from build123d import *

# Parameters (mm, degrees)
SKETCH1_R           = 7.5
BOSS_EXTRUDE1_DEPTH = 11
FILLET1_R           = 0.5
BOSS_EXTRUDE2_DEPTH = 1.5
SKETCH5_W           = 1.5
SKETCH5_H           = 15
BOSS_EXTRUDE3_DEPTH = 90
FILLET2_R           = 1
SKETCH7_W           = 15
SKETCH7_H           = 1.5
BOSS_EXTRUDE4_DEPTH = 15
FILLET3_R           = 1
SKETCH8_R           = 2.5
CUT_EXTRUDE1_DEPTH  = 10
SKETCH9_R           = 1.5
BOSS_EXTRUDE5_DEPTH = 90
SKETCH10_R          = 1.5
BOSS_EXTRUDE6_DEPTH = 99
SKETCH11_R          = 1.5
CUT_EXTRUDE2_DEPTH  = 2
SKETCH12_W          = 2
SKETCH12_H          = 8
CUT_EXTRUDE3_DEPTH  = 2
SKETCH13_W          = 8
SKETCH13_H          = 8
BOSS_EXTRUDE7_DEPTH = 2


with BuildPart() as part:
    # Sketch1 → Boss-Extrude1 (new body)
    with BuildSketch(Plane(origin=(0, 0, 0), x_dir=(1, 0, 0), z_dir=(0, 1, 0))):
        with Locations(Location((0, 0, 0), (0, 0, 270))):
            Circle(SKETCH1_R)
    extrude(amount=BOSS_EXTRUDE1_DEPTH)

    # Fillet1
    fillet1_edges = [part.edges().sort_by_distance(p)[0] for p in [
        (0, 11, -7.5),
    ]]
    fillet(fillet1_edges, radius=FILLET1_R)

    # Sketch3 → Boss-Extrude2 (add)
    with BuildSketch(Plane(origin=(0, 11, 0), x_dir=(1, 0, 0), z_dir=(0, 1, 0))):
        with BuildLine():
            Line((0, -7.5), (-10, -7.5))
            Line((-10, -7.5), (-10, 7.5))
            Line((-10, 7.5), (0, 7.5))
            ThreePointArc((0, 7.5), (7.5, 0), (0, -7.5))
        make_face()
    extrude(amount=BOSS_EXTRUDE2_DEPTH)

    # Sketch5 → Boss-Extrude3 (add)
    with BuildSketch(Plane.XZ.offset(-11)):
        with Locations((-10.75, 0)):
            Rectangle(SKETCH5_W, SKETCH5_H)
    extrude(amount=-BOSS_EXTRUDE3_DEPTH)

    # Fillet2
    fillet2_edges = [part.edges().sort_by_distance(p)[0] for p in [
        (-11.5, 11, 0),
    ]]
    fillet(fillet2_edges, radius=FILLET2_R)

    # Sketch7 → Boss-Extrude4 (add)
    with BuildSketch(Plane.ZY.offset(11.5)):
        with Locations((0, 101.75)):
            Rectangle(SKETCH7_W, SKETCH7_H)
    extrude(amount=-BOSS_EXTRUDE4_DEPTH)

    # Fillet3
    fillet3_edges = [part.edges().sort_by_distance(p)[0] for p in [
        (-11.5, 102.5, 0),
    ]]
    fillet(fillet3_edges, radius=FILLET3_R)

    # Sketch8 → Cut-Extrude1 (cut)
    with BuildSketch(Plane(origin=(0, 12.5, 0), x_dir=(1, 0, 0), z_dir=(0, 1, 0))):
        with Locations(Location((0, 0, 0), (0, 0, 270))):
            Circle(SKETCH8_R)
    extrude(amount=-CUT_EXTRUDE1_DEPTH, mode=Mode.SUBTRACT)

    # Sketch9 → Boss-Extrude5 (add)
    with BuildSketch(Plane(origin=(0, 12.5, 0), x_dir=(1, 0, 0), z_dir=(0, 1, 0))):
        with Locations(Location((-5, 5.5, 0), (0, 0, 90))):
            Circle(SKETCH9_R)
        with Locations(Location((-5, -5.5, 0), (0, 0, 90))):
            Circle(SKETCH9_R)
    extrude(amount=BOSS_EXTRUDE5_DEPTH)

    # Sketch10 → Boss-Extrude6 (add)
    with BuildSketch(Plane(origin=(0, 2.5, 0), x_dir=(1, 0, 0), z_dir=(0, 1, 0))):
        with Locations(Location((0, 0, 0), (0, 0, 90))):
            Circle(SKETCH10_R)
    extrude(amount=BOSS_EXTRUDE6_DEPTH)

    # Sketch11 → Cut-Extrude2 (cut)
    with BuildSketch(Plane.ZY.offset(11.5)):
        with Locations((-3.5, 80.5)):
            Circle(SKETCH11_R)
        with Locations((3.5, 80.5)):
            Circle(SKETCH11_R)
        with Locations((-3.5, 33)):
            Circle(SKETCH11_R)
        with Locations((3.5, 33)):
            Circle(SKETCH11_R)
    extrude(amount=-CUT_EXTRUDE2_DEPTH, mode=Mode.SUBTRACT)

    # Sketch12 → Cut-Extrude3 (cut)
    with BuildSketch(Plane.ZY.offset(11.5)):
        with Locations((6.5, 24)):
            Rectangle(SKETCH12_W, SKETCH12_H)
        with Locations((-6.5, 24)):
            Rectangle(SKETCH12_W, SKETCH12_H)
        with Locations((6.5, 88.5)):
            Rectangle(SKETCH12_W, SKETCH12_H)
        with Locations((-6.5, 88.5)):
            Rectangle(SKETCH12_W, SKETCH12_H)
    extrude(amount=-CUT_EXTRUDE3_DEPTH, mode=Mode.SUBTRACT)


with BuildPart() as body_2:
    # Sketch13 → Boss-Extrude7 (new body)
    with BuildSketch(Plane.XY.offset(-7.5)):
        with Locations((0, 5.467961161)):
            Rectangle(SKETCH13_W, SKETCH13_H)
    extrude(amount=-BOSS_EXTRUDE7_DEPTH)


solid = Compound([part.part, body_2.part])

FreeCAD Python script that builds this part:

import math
import FreeCAD as App
import Part
import Sketcher
Q = App.Units.Quantity


def edges_at(feature, points):
    """Names of the edges that pass closest to the given points."""
    edges = feature.Shape.Edges
    near = lambda p: min(range(len(edges)), key=lambda i: edges[i].distToShape(Part.Vertex(*p))[0])
    return sorted({f"Edge{near(p) + 1}" for p in points})

doc = App.newDocument("Part")
body = doc.addObject("PartDesign::Body", "Body")

# Sketch on XZ plane
sketch1 = body.newObject("Sketcher::SketchObject", "Sketch")
sketch1.AttachmentSupport = (doc.getObject("XZ_Plane"), [""])
sketch1.MapMode = "FlatFace"
sketch1.addGeometry(Part.Circle(App.Vector(0, 0, 0), App.Vector(0, 0, 1), 7.5), False)
sketch1.addConstraint(Sketcher.Constraint("Coincident", 0, 3, -1, 1))
sketch1.addConstraint(Sketcher.Constraint("Diameter", 0, Q("15 mm")))
pad1 = body.newObject("PartDesign::Pad", "Pad")
pad1.Profile = sketch1
pad1.Length = 11
pad1.Reversed = True
doc.recompute()

fillet = body.newObject("PartDesign::Fillet", "Fillet")
fillet.Base = (pad1, edges_at(pad1, [(0, 11, -7.5)]))
fillet.Radius = 0.5

# Sketch on XZ plane
sketch2 = body.newObject("Sketcher::SketchObject", "Sketch001")
sketch2.AttachmentSupport = (doc.getObject("XZ_Plane"), [""])
sketch2.MapMode = "FlatFace"
sketch2.AttachmentOffset = App.Placement(App.Vector(0, 0, -11), App.Rotation())
sketch2.addGeometry(Part.LineSegment(App.Vector(-10, 7.5, 0), App.Vector(0, 7.5, 0)), False)
sketch2.addGeometry(Part.ArcOfCircle(Part.Circle(App.Vector(0, 0, 0), App.Vector(0, 0, 1), 7.5), math.radians(-90), math.radians(90)), False)
sketch2.addGeometry(Part.LineSegment(App.Vector(0, -7.5, 0), App.Vector(-10, -7.5, 0)), False)
sketch2.addGeometry(Part.LineSegment(App.Vector(-10, -7.5, 0), App.Vector(-10, 7.5, 0)), False)
sketch2.addConstraint(Sketcher.Constraint("Tangent", 0, 2, 1, 2))
sketch2.addConstraint(Sketcher.Constraint("Tangent", 1, 1, 2, 1))
sketch2.addConstraint(Sketcher.Constraint("Coincident", 2, 2, 3, 1))
sketch2.addConstraint(Sketcher.Constraint("Coincident", 3, 2, 0, 1))
sketch2.addConstraint(Sketcher.Constraint("Horizontal", 0))
sketch2.addConstraint(Sketcher.Constraint("Horizontal", 2))
sketch2.addConstraint(Sketcher.Constraint("Vertical", 3))
sketch2.addConstraint(Sketcher.Constraint("Coincident", 1, 3, -1, 1))
sketch2.addConstraint(Sketcher.Constraint("Radius", 1, Q("7.5 mm")))
sketch2.addConstraint(Sketcher.Constraint("DistanceX", 0, 1, 0, 2, Q("10 mm")))
pad2 = body.newObject("PartDesign::Pad", "Pad001")
pad2.Profile = sketch2
pad2.Length = 1.5
pad2.Reversed = True

# Sketch on XZ plane
sketch3 = body.newObject("Sketcher::SketchObject", "Sketch002")
sketch3.AttachmentSupport = (doc.getObject("XZ_Plane"), [""])
sketch3.MapMode = "FlatFace"
sketch3.AttachmentOffset = App.Placement(App.Vector(0, 0, -11), App.Rotation())
sketch3.addGeometry(Part.LineSegment(App.Vector(-11.5, 7.5, 0), App.Vector(-11.5, -7.5, 0)), False)
sketch3.addGeometry(Part.LineSegment(App.Vector(-11.5, -7.5, 0), App.Vector(-10, -7.5, 0)), False)
sketch3.addGeometry(Part.LineSegment(App.Vector(-10, -7.5, 0), App.Vector(-10, 7.5, 0)), False)
sketch3.addGeometry(Part.LineSegment(App.Vector(-10, 7.5, 0), App.Vector(-11.5, 7.5, 0)), False)
sketch3.addConstraint(Sketcher.Constraint("Coincident", 0, 2, 1, 1))
sketch3.addConstraint(Sketcher.Constraint("Coincident", 1, 2, 2, 1))
sketch3.addConstraint(Sketcher.Constraint("Coincident", 2, 2, 3, 1))
sketch3.addConstraint(Sketcher.Constraint("Coincident", 3, 2, 0, 1))
sketch3.addConstraint(Sketcher.Constraint("Vertical", 0))
sketch3.addConstraint(Sketcher.Constraint("Horizontal", 1))
sketch3.addConstraint(Sketcher.Constraint("Vertical", 2))
sketch3.addConstraint(Sketcher.Constraint("Horizontal", 3))
sketch3.addConstraint(Sketcher.Constraint("DistanceY", 0, 2, 0, 1, Q("15 mm")))
sketch3.addConstraint(Sketcher.Constraint("DistanceX", 1, 1, 1, 2, Q("1.5 mm")))
sketch3.addConstraint(Sketcher.Constraint("DistanceX", 1, 2, -1, 1, Q("10 mm")))
sketch3.addConstraint(Sketcher.Constraint("DistanceY", 0, 2, -1, 1, Q("7.5 mm")))
pad3 = body.newObject("PartDesign::Pad", "Pad002")
pad3.Profile = sketch3
pad3.Length = 90
pad3.Reversed = True
doc.recompute()

fillet2 = body.newObject("PartDesign::Fillet", "Fillet001")
fillet2.Base = (pad3, edges_at(pad3, [(-11.5, 11, 0)]))
fillet2.Radius = 1

# Sketch on YZ plane
sketch4 = body.newObject("Sketcher::SketchObject", "Sketch003")
sketch4.AttachmentSupport = (doc.getObject("YZ_Plane"), [""])
sketch4.MapMode = "FlatFace"
sketch4.AttachmentOffset = App.Placement(App.Vector(0, 0, -11.5), App.Rotation())
sketch4.addGeometry(Part.LineSegment(App.Vector(102.5, -7.5, 0), App.Vector(101, -7.5, 0)), False)
sketch4.addGeometry(Part.LineSegment(App.Vector(101, -7.5, 0), App.Vector(101, 7.5, 0)), False)
sketch4.addGeometry(Part.LineSegment(App.Vector(101, 7.5, 0), App.Vector(102.5, 7.5, 0)), False)
sketch4.addGeometry(Part.LineSegment(App.Vector(102.5, 7.5, 0), App.Vector(102.5, -7.5, 0)), False)
sketch4.addConstraint(Sketcher.Constraint("Coincident", 0, 2, 1, 1))
sketch4.addConstraint(Sketcher.Constraint("Coincident", 1, 2, 2, 1))
sketch4.addConstraint(Sketcher.Constraint("Coincident", 2, 2, 3, 1))
sketch4.addConstraint(Sketcher.Constraint("Coincident", 3, 2, 0, 1))
sketch4.addConstraint(Sketcher.Constraint("Horizontal", 0))
sketch4.addConstraint(Sketcher.Constraint("Vertical", 1))
sketch4.addConstraint(Sketcher.Constraint("Horizontal", 2))
sketch4.addConstraint(Sketcher.Constraint("Vertical", 3))
sketch4.addConstraint(Sketcher.Constraint("DistanceY", 1, 1, 1, 2, Q("15 mm")))
sketch4.addConstraint(Sketcher.Constraint("DistanceX", 0, 2, 0, 1, Q("1.5 mm")))
sketch4.addConstraint(Sketcher.Constraint("DistanceX", -1, 1, 0, 2, Q("101 mm")))
sketch4.addConstraint(Sketcher.Constraint("DistanceY", 0, 2, -1, 1, Q("7.5 mm")))
pad4 = body.newObject("PartDesign::Pad", "Pad003")
pad4.Profile = sketch4
pad4.Length = 15
doc.recompute()

fillet3 = body.newObject("PartDesign::Fillet", "Fillet002")
fillet3.Base = (pad4, edges_at(pad4, [(-11.5, 102.5, 0)]))
fillet3.Radius = 1

# Sketch on XZ plane
sketch5 = body.newObject("Sketcher::SketchObject", "Sketch004")
sketch5.AttachmentSupport = (doc.getObject("XZ_Plane"), [""])
sketch5.MapMode = "FlatFace"
sketch5.AttachmentOffset = App.Placement(App.Vector(0, 0, -12.5), App.Rotation())
sketch5.addGeometry(Part.Circle(App.Vector(0, 0, 0), App.Vector(0, 0, 1), 2.5), False)
sketch5.addConstraint(Sketcher.Constraint("Coincident", 0, 3, -1, 1))
sketch5.addConstraint(Sketcher.Constraint("Diameter", 0, Q("5 mm")))
pocket1 = body.newObject("PartDesign::Pocket", "Pocket")
pocket1.Profile = sketch5
pocket1.Length = 10
pocket1.Reversed = True

# Sketch on XZ plane
sketch6 = body.newObject("Sketcher::SketchObject", "Sketch005")
sketch6.AttachmentSupport = (doc.getObject("XZ_Plane"), [""])
sketch6.MapMode = "FlatFace"
sketch6.AttachmentOffset = App.Placement(App.Vector(0, 0, -12.5), App.Rotation())
sketch6.addGeometry(Part.Circle(App.Vector(-5, -5.5, 0), App.Vector(0, 0, 1), 1.5), False)
sketch6.addGeometry(Part.Circle(App.Vector(-5, 5.5, 0), App.Vector(0, 0, 1), 1.5), False)
sketch6.addConstraint(Sketcher.Constraint("Equal", 0, 1))
sketch6.addConstraint(Sketcher.Constraint("Symmetric", 0, 3, 1, 3, -1))
sketch6.addConstraint(Sketcher.Constraint("Diameter", 0, Q("3 mm")))
sketch6.addConstraint(Sketcher.Constraint("DistanceX", 0, 3, -1, 1, Q("5 mm")))
sketch6.addConstraint(Sketcher.Constraint("DistanceY", 0, 3, 1, 3, Q("11 mm")))
pad5 = body.newObject("PartDesign::Pad", "Pad004")
pad5.Profile = sketch6
pad5.Length = 90
pad5.Reversed = True

# Sketch on XZ plane
sketch7 = body.newObject("Sketcher::SketchObject", "Sketch006")
sketch7.AttachmentSupport = (doc.getObject("XZ_Plane"), [""])
sketch7.MapMode = "FlatFace"
sketch7.AttachmentOffset = App.Placement(App.Vector(0, 0, -2.5), App.Rotation())
sketch7.addGeometry(Part.Circle(App.Vector(0, 0, 0), App.Vector(0, 0, 1), 1.5), False)
sketch7.addConstraint(Sketcher.Constraint("Coincident", 0, 3, -1, 1))
sketch7.addConstraint(Sketcher.Constraint("Diameter", 0, Q("3 mm")))
pad6 = body.newObject("PartDesign::Pad", "Pad005")
pad6.Profile = sketch7
pad6.Length = 99
pad6.Reversed = True

# Sketch on YZ plane
sketch8 = body.newObject("Sketcher::SketchObject", "Sketch007")
sketch8.AttachmentSupport = (doc.getObject("YZ_Plane"), [""])
sketch8.MapMode = "FlatFace"
sketch8.AttachmentOffset = App.Placement(App.Vector(0, 0, -11.5), App.Rotation())
sketch8.addGeometry(Part.Circle(App.Vector(80.5, -3.5, 0), App.Vector(0, 0, 1), 1.5), False)
sketch8.addGeometry(Part.Circle(App.Vector(80.5, 3.5, 0), App.Vector(0, 0, 1), 1.5), False)
sketch8.addGeometry(Part.Circle(App.Vector(33, -3.5, 0), App.Vector(0, 0, 1), 1.5), False)
sketch8.addGeometry(Part.Circle(App.Vector(33, 3.5, 0), App.Vector(0, 0, 1), 1.5), False)
sketch8.addConstraint(Sketcher.Constraint("Equal", 0, 1))
sketch8.addConstraint(Sketcher.Constraint("Equal", 1, 2))
sketch8.addConstraint(Sketcher.Constraint("Equal", 2, 3))
sketch8.addConstraint(Sketcher.Constraint("Symmetric", 0, 3, 1, 3, -1))
sketch8.addConstraint(Sketcher.Constraint("Symmetric", 2, 3, 3, 3, -1))
sketch8.addConstraint(Sketcher.Constraint("Horizontal", 0, 3, 2, 3))
sketch8.addConstraint(Sketcher.Constraint("Diameter", 0, Q("3 mm")))
sketch8.addConstraint(Sketcher.Constraint("DistanceX", -1, 1, 2, 3, Q("33 mm")))
sketch8.addConstraint(Sketcher.Constraint("DistanceY", 0, 3, 1, 3, Q("7 mm")))
sketch8.addConstraint(Sketcher.Constraint("DistanceX", -1, 1, 0, 3, Q("80.5 mm")))
pocket2 = body.newObject("PartDesign::Pocket", "Pocket001")
pocket2.Profile = sketch8
pocket2.Length = 2
pocket2.Reversed = True

# Sketch on YZ plane
sketch9 = body.newObject("Sketcher::SketchObject", "Sketch008")
sketch9.AttachmentSupport = (doc.getObject("YZ_Plane"), [""])
sketch9.MapMode = "FlatFace"
sketch9.AttachmentOffset = App.Placement(App.Vector(0, 0, -11.5), App.Rotation())
sketch9.addGeometry(Part.LineSegment(App.Vector(28, 5.5, 0), App.Vector(20, 5.5, 0)), False)
sketch9.addGeometry(Part.LineSegment(App.Vector(20, 5.5, 0), App.Vector(20, 7.5, 0)), False)
sketch9.addGeometry(Part.LineSegment(App.Vector(20, 7.5, 0), App.Vector(28, 7.5, 0)), False)
sketch9.addGeometry(Part.LineSegment(App.Vector(28, 7.5, 0), App.Vector(28, 5.5, 0)), False)
sketch9.addGeometry(Part.LineSegment(App.Vector(28, -7.5, 0), App.Vector(20, -7.5, 0)), False)
sketch9.addGeometry(Part.LineSegment(App.Vector(20, -7.5, 0), App.Vector(20, -5.5, 0)), False)
sketch9.addGeometry(Part.LineSegment(App.Vector(20, -5.5, 0), App.Vector(28, -5.5, 0)), False)
sketch9.addGeometry(Part.LineSegment(App.Vector(28, -5.5, 0), App.Vector(28, -7.5, 0)), False)
sketch9.addGeometry(Part.LineSegment(App.Vector(92.5, 5.5, 0), App.Vector(84.5, 5.5, 0)), False)
sketch9.addGeometry(Part.LineSegment(App.Vector(84.5, 5.5, 0), App.Vector(84.5, 7.5, 0)), False)
sketch9.addGeometry(Part.LineSegment(App.Vector(84.5, 7.5, 0), App.Vector(92.5, 7.5, 0)), False)
sketch9.addGeometry(Part.LineSegment(App.Vector(92.5, 7.5, 0), App.Vector(92.5, 5.5, 0)), False)
sketch9.addGeometry(Part.LineSegment(App.Vector(92.5, -7.5, 0), App.Vector(84.5, -7.5, 0)), False)
sketch9.addGeometry(Part.LineSegment(App.Vector(84.5, -7.5, 0), App.Vector(84.5, -5.5, 0)), False)
sketch9.addGeometry(Part.LineSegment(App.Vector(84.5, -5.5, 0), App.Vector(92.5, -5.5, 0)), False)
sketch9.addGeometry(Part.LineSegment(App.Vector(92.5, -5.5, 0), App.Vector(92.5, -7.5, 0)), False)
sketch9.addConstraint(Sketcher.Constraint("Coincident", 0, 2, 1, 1))
sketch9.addConstraint(Sketcher.Constraint("Coincident", 1, 2, 2, 1))
sketch9.addConstraint(Sketcher.Constraint("Coincident", 2, 2, 3, 1))
sketch9.addConstraint(Sketcher.Constraint("Coincident", 3, 2, 0, 1))
sketch9.addConstraint(Sketcher.Constraint("Coincident", 4, 2, 5, 1))
sketch9.addConstraint(Sketcher.Constraint("Coincident", 5, 2, 6, 1))
sketch9.addConstraint(Sketcher.Constraint("Coincident", 6, 2, 7, 1))
sketch9.addConstraint(Sketcher.Constraint("Coincident", 7, 2, 4, 1))
sketch9.addConstraint(Sketcher.Constraint("Coincident", 8, 2, 9, 1))
sketch9.addConstraint(Sketcher.Constraint("Coincident", 9, 2, 10, 1))
sketch9.addConstraint(Sketcher.Constraint("Coincident", 10, 2, 11, 1))
sketch9.addConstraint(Sketcher.Constraint("Coincident", 11, 2, 8, 1))
sketch9.addConstraint(Sketcher.Constraint("Coincident", 12, 2, 13, 1))
sketch9.addConstraint(Sketcher.Constraint("Coincident", 13, 2, 14, 1))
sketch9.addConstraint(Sketcher.Constraint("Coincident", 14, 2, 15, 1))
sketch9.addConstraint(Sketcher.Constraint("Coincident", 15, 2, 12, 1))
sketch9.addConstraint(Sketcher.Constraint("Horizontal", 0))
sketch9.addConstraint(Sketcher.Constraint("Vertical", 1))
sketch9.addConstraint(Sketcher.Constraint("Horizontal", 2))
sketch9.addConstraint(Sketcher.Constraint("Vertical", 3))
sketch9.addConstraint(Sketcher.Constraint("Horizontal", 4))
sketch9.addConstraint(Sketcher.Constraint("Vertical", 5))
sketch9.addConstraint(Sketcher.Constraint("Horizontal", 6))
sketch9.addConstraint(Sketcher.Constraint("Vertical", 7))
sketch9.addConstraint(Sketcher.Constraint("Horizontal", 8))
sketch9.addConstraint(Sketcher.Constraint("Vertical", 9))
sketch9.addConstraint(Sketcher.Constraint("Horizontal", 10))
sketch9.addConstraint(Sketcher.Constraint("Vertical", 11))
sketch9.addConstraint(Sketcher.Constraint("Horizontal", 12))
sketch9.addConstraint(Sketcher.Constraint("Vertical", 13))
sketch9.addConstraint(Sketcher.Constraint("Horizontal", 14))
sketch9.addConstraint(Sketcher.Constraint("Vertical", 15))
sketch9.addConstraint(Sketcher.Constraint("Symmetric", 1, 2, 4, 2, -1))
sketch9.addConstraint(Sketcher.Constraint("Symmetric", 3, 2, 6, 2, -1))
sketch9.addConstraint(Sketcher.Constraint("Symmetric", 9, 2, 12, 2, -1))
sketch9.addConstraint(Sketcher.Constraint("Symmetric", 11, 2, 14, 2, -1))
sketch9.addConstraint(Sketcher.Constraint("Horizontal", 3, 2, 8, 2))
sketch9.addConstraint(Sketcher.Constraint("Horizontal", 2, 2, 9, 2))
sketch9.addConstraint(Sketcher.Constraint("Equal", 6, 8))
sketch9.addConstraint(Sketcher.Constraint("DistanceX", 0, 2, 0, 1, Q("8 mm")))
sketch9.addConstraint(Sketcher.Constraint("DistanceY", 1, 1, 1, 2, Q("2 mm")))
sketch9.addConstraint(Sketcher.Constraint("DistanceX", -1, 1, 0, 2, Q("20 mm")))
sketch9.addConstraint(Sketcher.Constraint("DistanceY", 4, 2, 0, 2, Q("13 mm")))
sketch9.addConstraint(Sketcher.Constraint("DistanceX", -1, 1, 8, 2, Q("84.5 mm")))
pocket3 = body.newObject("PartDesign::Pocket", "Pocket002")
pocket3.Profile = sketch9
pocket3.Length = 2
pocket3.Reversed = True
body2 = doc.addObject("PartDesign::Body", "Body001")

# Sketch on XY plane
sketch10 = body2.newObject("Sketcher::SketchObject", "Sketch009")
sketch10.AttachmentSupport = (doc.getObject("XY_Plane001"), [""])
sketch10.MapMode = "FlatFace"
sketch10.AttachmentOffset = App.Placement(App.Vector(0, 0, -7.5), App.Rotation())
sketch10.addGeometry(Part.LineSegment(App.Vector(-4, 9.467961, 0), App.Vector(-4, 1.467961, 0)), False)
sketch10.addGeometry(Part.LineSegment(App.Vector(-4, 1.467961, 0), App.Vector(4, 1.467961, 0)), False)
sketch10.addGeometry(Part.LineSegment(App.Vector(4, 1.467961, 0), App.Vector(4, 9.467961, 0)), False)
sketch10.addGeometry(Part.LineSegment(App.Vector(4, 9.467961, 0), App.Vector(-4, 9.467961, 0)), False)
sketch10.addConstraint(Sketcher.Constraint("Coincident", 0, 2, 1, 1))
sketch10.addConstraint(Sketcher.Constraint("Coincident", 1, 2, 2, 1))
sketch10.addConstraint(Sketcher.Constraint("Coincident", 2, 2, 3, 1))
sketch10.addConstraint(Sketcher.Constraint("Coincident", 3, 2, 0, 1))
sketch10.addConstraint(Sketcher.Constraint("Vertical", 0))
sketch10.addConstraint(Sketcher.Constraint("Horizontal", 1))
sketch10.addConstraint(Sketcher.Constraint("Vertical", 2))
sketch10.addConstraint(Sketcher.Constraint("Horizontal", 3))
sketch10.addConstraint(Sketcher.Constraint("Equal", 3, 0))
sketch10.addConstraint(Sketcher.Constraint("DistanceX", 1, 1, 1, 2, Q("8 mm")))
sketch10.addConstraint(Sketcher.Constraint("DistanceX", 0, 2, -1, 1, Q("4 mm")))
sketch10.addConstraint(Sketcher.Constraint("DistanceY", -1, 1, 0, 2, Q("1.467961 mm")))
pad7 = body2.newObject("PartDesign::Pad", "Pad006")
pad7.Profile = sketch10
pad7.Length = 2
pad7.Reversed = True

doc.recompute()
